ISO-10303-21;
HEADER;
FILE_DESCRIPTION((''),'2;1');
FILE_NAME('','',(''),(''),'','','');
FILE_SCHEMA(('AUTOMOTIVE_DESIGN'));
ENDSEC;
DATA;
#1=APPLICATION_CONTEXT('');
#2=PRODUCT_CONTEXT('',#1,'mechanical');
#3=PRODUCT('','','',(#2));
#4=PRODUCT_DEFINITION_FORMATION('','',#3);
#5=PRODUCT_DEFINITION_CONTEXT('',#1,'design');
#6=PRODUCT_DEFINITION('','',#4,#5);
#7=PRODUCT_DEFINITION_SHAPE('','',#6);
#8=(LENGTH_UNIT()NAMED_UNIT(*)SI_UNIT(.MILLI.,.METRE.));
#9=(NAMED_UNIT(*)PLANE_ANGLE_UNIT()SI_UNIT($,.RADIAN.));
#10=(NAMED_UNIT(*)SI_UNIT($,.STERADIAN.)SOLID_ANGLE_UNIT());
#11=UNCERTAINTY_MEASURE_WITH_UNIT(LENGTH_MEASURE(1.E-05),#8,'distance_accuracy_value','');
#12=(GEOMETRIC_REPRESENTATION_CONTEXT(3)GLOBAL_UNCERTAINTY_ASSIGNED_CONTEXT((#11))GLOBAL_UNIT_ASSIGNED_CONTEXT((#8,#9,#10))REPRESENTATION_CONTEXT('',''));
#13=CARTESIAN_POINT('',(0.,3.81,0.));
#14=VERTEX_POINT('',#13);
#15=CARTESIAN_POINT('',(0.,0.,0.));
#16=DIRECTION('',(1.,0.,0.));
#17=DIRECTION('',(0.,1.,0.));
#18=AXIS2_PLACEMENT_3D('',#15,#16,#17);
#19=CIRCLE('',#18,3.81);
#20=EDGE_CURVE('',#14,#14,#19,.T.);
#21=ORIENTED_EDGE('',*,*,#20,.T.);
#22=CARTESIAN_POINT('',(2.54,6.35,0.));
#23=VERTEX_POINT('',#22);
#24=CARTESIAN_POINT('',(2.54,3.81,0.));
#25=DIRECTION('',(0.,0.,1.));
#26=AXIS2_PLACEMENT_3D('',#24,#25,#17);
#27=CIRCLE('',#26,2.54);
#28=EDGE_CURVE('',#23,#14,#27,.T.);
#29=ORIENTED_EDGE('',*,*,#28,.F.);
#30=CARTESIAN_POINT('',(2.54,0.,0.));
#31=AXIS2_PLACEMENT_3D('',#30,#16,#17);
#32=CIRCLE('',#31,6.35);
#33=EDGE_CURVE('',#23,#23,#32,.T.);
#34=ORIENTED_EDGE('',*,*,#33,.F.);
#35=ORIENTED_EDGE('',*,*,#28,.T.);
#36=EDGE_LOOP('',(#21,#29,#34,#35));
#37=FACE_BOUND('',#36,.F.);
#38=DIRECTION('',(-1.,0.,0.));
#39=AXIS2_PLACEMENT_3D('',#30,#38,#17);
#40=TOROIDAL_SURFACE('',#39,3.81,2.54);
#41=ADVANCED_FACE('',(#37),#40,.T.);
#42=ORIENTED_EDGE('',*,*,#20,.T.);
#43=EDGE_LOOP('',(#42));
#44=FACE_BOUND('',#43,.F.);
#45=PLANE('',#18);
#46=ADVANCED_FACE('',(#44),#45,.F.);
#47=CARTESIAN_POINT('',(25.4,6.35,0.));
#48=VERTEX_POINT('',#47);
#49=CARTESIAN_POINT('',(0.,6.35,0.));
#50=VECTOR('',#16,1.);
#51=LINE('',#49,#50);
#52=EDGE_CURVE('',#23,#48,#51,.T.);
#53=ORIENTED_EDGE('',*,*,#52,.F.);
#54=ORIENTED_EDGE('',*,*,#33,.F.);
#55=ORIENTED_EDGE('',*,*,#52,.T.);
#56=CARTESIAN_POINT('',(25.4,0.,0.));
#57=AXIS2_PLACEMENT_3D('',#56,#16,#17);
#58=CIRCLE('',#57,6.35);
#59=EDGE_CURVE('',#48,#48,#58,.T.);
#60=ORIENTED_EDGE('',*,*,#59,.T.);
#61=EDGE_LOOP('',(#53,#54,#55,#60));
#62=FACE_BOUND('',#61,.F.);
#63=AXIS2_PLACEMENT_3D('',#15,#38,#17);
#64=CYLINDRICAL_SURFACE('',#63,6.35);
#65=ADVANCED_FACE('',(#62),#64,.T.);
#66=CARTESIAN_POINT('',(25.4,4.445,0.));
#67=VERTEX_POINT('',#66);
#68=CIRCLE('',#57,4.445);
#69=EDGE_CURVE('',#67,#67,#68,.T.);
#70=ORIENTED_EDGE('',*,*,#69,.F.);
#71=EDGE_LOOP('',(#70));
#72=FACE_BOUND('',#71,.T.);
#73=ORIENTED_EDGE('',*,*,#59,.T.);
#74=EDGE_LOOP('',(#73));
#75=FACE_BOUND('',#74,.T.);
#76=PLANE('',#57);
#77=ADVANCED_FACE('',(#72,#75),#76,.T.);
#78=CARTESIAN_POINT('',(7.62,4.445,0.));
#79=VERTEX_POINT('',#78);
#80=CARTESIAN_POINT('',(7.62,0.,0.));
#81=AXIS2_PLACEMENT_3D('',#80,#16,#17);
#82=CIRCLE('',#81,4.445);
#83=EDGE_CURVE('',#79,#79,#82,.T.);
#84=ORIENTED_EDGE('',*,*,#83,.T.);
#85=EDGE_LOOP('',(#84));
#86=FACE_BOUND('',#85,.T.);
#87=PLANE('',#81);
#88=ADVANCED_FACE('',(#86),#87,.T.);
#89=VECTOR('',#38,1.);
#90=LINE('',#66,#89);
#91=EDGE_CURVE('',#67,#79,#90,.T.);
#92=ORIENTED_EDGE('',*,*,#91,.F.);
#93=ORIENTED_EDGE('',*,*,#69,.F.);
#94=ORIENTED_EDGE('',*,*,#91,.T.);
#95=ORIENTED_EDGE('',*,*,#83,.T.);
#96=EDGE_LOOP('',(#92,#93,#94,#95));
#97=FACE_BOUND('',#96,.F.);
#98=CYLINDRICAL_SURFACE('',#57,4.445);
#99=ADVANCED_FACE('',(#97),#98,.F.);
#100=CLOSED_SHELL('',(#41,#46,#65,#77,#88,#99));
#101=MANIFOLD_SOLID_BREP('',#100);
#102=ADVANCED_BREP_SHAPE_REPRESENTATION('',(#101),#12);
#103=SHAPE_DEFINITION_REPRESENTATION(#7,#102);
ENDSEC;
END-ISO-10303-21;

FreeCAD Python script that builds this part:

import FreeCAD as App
import Part
import Sketcher
from FreeCAD import Vector
Q = App.Units.Quantity


def edges_at(feature, points):
    """Names of the edges that pass closest to the given points."""
    edges = feature.Shape.Edges
    near = lambda p: min(range(len(edges)), key=lambda i: edges[i].distToShape(Part.Vertex(*p))[0])
    return sorted({f"Edge{near(p) + 1}" for p in points})

doc = App.newDocument("Part")
body = doc.addObject("PartDesign::Body", "Body")

# Sketch on YZ plane
sketch1 = body.newObject("Sketcher::SketchObject", "Sketch")
sketch1.AttachmentSupport = (doc.getObject("YZ_Plane"), [""])
sketch1.MapMode = "FlatFace"
sketch1.addGeometry(Part.Circle(Vector(0, 0, 0), Vector(0, 0, 1), 6.35), False)
sketch1.addConstraint(Sketcher.Constraint("Coincident", 0, 3, -1, 1))
sketch1.addConstraint(Sketcher.Constraint("Diameter", 0, Q("0.5 in")))
pad1 = body.newObject("PartDesign::Pad", "Pad")
pad1.Profile = sketch1
pad1.Length = Q("1 in")

# Sketch on YZ plane
sketch2 = body.newObject("Sketcher::SketchObject", "Sketch001")
sketch2.AttachmentSupport = (doc.getObject("YZ_Plane"), [""])
sketch2.MapMode = "FlatFace"
sketch2.AttachmentOffset = App.Placement(Vector(0, 0, 1 * 25.4), App.Rotation())
sketch2.addGeometry(Part.Circle(Vector(0, 0, 0), Vector(0, 0, 1), 4.445), False)
sketch2.addConstraint(Sketcher.Constraint("Coincident", 0, 3, -1, 1))
sketch2.addConstraint(Sketcher.Constraint("Diameter", 0, Q("0.35 in")))
pocket1 = body.newObject("PartDesign::Pocket", "Pocket")
pocket1.Profile = sketch2
pocket1.Length = Q("0.7 in")
doc.recompute()

fillet = body.newObject("PartDesign::Fillet", "Fillet")
fillet.Base = (pocket1, edges_at(pocket1, [(0, -6.35, 0)]))
fillet.Radius = Q("0.1 in")

doc.recompute()
